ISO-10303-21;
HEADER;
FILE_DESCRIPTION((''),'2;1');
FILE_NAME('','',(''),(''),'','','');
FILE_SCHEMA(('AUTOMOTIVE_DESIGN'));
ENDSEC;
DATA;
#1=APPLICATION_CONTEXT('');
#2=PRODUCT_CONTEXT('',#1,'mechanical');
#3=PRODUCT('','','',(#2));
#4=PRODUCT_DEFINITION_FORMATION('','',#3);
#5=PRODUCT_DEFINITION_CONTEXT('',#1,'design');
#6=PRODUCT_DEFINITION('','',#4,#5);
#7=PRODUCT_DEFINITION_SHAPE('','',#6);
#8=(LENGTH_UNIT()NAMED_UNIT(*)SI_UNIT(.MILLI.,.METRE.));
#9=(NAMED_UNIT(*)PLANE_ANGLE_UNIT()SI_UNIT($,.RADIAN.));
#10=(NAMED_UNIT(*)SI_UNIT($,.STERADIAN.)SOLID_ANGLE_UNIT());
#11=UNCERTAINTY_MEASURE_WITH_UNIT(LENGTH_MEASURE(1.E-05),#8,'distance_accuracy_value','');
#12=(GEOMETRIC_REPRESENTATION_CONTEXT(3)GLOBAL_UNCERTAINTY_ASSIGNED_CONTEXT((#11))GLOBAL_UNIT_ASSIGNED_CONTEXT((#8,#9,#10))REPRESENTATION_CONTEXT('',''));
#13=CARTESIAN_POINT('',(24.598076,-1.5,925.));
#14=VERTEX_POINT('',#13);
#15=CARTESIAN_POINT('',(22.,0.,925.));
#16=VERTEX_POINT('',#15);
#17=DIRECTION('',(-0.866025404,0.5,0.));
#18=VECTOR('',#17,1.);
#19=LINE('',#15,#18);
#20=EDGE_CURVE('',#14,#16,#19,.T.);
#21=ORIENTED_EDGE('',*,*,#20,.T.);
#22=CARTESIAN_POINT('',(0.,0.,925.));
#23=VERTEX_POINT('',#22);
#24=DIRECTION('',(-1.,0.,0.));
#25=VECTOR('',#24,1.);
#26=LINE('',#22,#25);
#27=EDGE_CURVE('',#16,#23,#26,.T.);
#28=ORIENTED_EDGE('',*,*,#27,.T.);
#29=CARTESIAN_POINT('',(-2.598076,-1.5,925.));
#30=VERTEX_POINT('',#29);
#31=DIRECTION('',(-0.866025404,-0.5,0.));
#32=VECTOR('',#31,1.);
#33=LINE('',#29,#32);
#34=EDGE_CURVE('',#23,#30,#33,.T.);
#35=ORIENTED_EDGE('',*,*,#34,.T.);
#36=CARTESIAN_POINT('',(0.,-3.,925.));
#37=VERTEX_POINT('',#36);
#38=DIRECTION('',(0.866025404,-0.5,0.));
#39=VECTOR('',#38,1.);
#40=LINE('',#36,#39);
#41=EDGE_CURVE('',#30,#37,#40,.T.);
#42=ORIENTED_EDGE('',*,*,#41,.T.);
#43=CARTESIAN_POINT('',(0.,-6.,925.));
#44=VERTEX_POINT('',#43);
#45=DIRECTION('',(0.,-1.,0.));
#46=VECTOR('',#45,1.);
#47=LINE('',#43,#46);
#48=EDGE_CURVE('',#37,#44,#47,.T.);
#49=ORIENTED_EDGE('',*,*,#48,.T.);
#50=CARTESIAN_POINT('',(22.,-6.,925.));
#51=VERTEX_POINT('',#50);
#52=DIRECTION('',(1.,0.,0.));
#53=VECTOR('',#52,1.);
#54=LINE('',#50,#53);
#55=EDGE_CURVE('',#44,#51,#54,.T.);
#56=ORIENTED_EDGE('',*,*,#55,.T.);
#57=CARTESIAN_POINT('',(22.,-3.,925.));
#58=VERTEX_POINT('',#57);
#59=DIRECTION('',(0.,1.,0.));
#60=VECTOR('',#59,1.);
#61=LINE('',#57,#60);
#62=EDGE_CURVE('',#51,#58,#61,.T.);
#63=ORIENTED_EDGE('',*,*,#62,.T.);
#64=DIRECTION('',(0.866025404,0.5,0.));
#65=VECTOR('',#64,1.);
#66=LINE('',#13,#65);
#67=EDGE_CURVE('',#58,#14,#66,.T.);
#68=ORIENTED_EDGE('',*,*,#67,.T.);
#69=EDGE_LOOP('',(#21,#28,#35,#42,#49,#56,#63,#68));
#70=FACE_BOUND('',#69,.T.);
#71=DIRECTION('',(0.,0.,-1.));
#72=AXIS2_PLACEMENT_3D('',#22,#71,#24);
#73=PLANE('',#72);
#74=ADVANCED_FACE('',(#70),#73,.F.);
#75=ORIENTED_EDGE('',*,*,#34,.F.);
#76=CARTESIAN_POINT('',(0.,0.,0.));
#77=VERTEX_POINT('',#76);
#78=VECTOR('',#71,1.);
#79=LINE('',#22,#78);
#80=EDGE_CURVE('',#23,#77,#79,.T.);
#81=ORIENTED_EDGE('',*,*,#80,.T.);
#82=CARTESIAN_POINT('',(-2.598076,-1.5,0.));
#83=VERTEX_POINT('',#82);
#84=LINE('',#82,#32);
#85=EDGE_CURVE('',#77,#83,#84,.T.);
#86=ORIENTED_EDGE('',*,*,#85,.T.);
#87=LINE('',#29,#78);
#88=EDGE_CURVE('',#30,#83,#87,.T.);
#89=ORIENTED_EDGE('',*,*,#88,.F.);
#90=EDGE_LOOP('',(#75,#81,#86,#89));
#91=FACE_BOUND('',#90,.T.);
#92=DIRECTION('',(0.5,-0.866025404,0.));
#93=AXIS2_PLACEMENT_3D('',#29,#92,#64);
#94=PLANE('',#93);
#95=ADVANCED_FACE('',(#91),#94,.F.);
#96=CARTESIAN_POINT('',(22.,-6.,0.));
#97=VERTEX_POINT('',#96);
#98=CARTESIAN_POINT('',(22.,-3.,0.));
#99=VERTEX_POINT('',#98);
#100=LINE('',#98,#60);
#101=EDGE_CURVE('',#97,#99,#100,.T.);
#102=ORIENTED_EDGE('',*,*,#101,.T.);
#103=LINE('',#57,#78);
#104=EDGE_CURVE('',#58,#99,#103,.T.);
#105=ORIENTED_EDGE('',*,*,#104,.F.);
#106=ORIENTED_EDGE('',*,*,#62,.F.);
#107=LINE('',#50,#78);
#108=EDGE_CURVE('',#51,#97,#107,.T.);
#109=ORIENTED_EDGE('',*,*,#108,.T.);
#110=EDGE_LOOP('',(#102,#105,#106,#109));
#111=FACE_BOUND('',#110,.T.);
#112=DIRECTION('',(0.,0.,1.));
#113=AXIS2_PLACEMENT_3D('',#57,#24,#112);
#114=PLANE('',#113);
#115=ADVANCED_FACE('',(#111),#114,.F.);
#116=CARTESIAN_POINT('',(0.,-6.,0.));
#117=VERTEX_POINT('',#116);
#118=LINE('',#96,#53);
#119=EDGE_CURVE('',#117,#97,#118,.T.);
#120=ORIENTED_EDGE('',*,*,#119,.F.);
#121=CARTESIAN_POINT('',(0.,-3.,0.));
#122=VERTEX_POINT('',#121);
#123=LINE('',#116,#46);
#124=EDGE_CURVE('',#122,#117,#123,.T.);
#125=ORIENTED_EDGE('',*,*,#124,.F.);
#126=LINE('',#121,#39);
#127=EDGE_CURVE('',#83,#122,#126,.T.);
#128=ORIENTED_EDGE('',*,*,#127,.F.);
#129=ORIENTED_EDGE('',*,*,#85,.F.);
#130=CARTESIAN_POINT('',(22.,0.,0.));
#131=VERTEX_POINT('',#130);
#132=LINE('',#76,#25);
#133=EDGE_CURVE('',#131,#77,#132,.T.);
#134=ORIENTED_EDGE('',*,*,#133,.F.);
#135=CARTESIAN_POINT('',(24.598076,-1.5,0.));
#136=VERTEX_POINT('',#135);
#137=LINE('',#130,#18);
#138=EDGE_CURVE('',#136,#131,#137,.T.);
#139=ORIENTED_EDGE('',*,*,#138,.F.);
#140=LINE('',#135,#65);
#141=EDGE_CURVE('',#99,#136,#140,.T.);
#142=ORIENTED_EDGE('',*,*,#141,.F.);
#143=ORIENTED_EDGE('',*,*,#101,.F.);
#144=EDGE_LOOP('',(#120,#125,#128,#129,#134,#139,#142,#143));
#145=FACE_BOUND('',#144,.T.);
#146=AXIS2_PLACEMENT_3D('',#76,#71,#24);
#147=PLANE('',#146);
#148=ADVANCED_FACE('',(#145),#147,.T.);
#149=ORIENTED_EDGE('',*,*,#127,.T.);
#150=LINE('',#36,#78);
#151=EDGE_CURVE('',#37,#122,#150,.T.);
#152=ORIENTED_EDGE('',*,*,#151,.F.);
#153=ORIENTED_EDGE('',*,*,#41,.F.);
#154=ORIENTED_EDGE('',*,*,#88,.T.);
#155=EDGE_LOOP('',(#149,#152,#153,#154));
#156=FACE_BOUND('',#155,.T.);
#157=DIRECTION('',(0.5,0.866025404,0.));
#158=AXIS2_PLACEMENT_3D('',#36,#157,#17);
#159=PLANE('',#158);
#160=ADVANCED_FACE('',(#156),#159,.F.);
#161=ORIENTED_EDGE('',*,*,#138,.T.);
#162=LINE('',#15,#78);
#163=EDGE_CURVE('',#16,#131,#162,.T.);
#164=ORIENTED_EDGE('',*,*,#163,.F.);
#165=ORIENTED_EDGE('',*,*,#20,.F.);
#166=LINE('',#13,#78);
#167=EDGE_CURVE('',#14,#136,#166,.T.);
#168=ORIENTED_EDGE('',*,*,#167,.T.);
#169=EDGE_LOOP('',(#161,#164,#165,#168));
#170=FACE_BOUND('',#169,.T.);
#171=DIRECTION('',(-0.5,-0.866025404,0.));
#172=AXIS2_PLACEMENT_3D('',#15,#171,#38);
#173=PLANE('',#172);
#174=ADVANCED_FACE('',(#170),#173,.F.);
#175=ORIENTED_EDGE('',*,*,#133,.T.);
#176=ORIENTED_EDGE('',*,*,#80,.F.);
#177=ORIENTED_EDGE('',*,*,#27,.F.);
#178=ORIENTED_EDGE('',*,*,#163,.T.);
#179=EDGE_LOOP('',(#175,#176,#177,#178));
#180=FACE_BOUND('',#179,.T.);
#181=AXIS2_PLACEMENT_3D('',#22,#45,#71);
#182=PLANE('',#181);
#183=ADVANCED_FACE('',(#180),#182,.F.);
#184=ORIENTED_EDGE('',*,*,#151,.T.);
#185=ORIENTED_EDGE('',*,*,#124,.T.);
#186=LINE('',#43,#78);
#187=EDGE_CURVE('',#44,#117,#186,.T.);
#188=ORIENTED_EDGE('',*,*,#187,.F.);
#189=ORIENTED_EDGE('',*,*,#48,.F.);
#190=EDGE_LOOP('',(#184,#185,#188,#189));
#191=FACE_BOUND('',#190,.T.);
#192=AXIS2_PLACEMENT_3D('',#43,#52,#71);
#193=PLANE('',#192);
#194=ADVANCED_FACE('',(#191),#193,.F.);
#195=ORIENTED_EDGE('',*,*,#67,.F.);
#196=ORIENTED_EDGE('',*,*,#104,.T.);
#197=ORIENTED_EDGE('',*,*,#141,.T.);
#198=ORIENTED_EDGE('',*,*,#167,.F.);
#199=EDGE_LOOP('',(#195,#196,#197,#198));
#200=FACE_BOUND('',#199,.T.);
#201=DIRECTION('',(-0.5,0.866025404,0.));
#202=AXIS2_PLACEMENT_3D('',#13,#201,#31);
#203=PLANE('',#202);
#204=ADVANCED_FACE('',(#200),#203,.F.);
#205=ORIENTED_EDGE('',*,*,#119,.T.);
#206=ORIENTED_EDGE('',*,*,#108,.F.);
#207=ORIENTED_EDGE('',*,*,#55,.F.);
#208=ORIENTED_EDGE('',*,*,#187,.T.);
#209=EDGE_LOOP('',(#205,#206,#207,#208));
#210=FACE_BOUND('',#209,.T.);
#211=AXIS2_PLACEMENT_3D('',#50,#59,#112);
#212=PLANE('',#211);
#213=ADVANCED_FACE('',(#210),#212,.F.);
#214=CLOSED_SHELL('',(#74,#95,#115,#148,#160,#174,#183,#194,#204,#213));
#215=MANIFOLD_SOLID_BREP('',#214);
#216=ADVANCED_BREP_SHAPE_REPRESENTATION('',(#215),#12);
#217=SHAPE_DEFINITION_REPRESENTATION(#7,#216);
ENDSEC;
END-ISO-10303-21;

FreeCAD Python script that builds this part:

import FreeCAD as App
import Part
import Sketcher
Q = App.Units.Quantity


def add_polygon(sketch, points):
    """Adds a closed chain of lines whose ends are joined by coincident constraints."""
    first, n = sketch.GeometryCount, len(points)
    for a, b in zip(points, points[1:] + points[:1]):
        sketch.addGeometry(Part.LineSegment(App.Vector(*a, 0), App.Vector(*b, 0)), False)
    for i in range(n):
        sketch.addConstraint(Sketcher.Constraint("Coincident", first + i, 2, first + (i + 1) % n, 1))

doc = App.newDocument("Part")
params = doc.addObject("Spreadsheet::Sheet", "Params")
for row, (alias, value) in enumerate([
    ("sketch1_width", "22 mm"),
    ("sketch1_height", "3 mm"),
    ("sketch1_length", "3 mm"),
    ("pad1_length", "925 mm"),
], start=1):
    params.set(f"A{row}", alias)
    params.set(f"B{row}", "=" + value)
    params.setAlias(f"B{row}", alias)

body = doc.addObject("PartDesign::Body", "Body")

sketch1 = body.newObject("Sketcher::SketchObject", "Sketch")
sketch1.AttachmentSupport = (doc.getObject("XY_Plane"), [""])
sketch1.MapMode = "FlatFace"
add_polygon(sketch1, [(22, 0), (0, 0), (-2.598076, -1.5), (0, -3), (0, -6), (22, -6), (22, -3), (24.598076, -1.5)])
sketch1.addConstraint([
    Sketcher.Constraint("Horizontal", 0),
    Sketcher.Constraint("Vertical", 3),
    Sketcher.Constraint("Horizontal", 4),
    Sketcher.Constraint("Vertical", 5),
    Sketcher.Constraint("Coincident", 0, 2, -1, 1),
    Sketcher.Constraint("PointOnObject", 2, 2, -2),
    Sketcher.Constraint("Parallel", 1, 6),
    Sketcher.Constraint("Parallel", 2, 7),
    Sketcher.Constraint("Horizontal", 2, 2, 5, 2),
    Sketcher.Constraint("Horizontal", 1, 2, 6, 2),
    Sketcher.Constraint("Vertical", 5, 2, 7, 2),
    Sketcher.Constraint("DistanceX", 0, 2, 0, 1, 22.0),
    Sketcher.Constraint("DistanceY", 3, 2, 3, 1, 3.0),
    Sketcher.Constraint("Angle", 1, Q("-150 deg")),
    Sketcher.Constraint("Distance", 1, 3.0),
])
sketch1.setExpression("Constraints[19]", "Params.sketch1_width")
sketch1.setExpression("Constraints[20]", "Params.sketch1_height")
sketch1.setExpression("Constraints[22]", "Params.sketch1_length")
pad1 = body.newObject("PartDesign::Pad", "Pad")
pad1.Profile = sketch1
pad1.setExpression("Length", "Params.pad1_length")

doc.recompute()
